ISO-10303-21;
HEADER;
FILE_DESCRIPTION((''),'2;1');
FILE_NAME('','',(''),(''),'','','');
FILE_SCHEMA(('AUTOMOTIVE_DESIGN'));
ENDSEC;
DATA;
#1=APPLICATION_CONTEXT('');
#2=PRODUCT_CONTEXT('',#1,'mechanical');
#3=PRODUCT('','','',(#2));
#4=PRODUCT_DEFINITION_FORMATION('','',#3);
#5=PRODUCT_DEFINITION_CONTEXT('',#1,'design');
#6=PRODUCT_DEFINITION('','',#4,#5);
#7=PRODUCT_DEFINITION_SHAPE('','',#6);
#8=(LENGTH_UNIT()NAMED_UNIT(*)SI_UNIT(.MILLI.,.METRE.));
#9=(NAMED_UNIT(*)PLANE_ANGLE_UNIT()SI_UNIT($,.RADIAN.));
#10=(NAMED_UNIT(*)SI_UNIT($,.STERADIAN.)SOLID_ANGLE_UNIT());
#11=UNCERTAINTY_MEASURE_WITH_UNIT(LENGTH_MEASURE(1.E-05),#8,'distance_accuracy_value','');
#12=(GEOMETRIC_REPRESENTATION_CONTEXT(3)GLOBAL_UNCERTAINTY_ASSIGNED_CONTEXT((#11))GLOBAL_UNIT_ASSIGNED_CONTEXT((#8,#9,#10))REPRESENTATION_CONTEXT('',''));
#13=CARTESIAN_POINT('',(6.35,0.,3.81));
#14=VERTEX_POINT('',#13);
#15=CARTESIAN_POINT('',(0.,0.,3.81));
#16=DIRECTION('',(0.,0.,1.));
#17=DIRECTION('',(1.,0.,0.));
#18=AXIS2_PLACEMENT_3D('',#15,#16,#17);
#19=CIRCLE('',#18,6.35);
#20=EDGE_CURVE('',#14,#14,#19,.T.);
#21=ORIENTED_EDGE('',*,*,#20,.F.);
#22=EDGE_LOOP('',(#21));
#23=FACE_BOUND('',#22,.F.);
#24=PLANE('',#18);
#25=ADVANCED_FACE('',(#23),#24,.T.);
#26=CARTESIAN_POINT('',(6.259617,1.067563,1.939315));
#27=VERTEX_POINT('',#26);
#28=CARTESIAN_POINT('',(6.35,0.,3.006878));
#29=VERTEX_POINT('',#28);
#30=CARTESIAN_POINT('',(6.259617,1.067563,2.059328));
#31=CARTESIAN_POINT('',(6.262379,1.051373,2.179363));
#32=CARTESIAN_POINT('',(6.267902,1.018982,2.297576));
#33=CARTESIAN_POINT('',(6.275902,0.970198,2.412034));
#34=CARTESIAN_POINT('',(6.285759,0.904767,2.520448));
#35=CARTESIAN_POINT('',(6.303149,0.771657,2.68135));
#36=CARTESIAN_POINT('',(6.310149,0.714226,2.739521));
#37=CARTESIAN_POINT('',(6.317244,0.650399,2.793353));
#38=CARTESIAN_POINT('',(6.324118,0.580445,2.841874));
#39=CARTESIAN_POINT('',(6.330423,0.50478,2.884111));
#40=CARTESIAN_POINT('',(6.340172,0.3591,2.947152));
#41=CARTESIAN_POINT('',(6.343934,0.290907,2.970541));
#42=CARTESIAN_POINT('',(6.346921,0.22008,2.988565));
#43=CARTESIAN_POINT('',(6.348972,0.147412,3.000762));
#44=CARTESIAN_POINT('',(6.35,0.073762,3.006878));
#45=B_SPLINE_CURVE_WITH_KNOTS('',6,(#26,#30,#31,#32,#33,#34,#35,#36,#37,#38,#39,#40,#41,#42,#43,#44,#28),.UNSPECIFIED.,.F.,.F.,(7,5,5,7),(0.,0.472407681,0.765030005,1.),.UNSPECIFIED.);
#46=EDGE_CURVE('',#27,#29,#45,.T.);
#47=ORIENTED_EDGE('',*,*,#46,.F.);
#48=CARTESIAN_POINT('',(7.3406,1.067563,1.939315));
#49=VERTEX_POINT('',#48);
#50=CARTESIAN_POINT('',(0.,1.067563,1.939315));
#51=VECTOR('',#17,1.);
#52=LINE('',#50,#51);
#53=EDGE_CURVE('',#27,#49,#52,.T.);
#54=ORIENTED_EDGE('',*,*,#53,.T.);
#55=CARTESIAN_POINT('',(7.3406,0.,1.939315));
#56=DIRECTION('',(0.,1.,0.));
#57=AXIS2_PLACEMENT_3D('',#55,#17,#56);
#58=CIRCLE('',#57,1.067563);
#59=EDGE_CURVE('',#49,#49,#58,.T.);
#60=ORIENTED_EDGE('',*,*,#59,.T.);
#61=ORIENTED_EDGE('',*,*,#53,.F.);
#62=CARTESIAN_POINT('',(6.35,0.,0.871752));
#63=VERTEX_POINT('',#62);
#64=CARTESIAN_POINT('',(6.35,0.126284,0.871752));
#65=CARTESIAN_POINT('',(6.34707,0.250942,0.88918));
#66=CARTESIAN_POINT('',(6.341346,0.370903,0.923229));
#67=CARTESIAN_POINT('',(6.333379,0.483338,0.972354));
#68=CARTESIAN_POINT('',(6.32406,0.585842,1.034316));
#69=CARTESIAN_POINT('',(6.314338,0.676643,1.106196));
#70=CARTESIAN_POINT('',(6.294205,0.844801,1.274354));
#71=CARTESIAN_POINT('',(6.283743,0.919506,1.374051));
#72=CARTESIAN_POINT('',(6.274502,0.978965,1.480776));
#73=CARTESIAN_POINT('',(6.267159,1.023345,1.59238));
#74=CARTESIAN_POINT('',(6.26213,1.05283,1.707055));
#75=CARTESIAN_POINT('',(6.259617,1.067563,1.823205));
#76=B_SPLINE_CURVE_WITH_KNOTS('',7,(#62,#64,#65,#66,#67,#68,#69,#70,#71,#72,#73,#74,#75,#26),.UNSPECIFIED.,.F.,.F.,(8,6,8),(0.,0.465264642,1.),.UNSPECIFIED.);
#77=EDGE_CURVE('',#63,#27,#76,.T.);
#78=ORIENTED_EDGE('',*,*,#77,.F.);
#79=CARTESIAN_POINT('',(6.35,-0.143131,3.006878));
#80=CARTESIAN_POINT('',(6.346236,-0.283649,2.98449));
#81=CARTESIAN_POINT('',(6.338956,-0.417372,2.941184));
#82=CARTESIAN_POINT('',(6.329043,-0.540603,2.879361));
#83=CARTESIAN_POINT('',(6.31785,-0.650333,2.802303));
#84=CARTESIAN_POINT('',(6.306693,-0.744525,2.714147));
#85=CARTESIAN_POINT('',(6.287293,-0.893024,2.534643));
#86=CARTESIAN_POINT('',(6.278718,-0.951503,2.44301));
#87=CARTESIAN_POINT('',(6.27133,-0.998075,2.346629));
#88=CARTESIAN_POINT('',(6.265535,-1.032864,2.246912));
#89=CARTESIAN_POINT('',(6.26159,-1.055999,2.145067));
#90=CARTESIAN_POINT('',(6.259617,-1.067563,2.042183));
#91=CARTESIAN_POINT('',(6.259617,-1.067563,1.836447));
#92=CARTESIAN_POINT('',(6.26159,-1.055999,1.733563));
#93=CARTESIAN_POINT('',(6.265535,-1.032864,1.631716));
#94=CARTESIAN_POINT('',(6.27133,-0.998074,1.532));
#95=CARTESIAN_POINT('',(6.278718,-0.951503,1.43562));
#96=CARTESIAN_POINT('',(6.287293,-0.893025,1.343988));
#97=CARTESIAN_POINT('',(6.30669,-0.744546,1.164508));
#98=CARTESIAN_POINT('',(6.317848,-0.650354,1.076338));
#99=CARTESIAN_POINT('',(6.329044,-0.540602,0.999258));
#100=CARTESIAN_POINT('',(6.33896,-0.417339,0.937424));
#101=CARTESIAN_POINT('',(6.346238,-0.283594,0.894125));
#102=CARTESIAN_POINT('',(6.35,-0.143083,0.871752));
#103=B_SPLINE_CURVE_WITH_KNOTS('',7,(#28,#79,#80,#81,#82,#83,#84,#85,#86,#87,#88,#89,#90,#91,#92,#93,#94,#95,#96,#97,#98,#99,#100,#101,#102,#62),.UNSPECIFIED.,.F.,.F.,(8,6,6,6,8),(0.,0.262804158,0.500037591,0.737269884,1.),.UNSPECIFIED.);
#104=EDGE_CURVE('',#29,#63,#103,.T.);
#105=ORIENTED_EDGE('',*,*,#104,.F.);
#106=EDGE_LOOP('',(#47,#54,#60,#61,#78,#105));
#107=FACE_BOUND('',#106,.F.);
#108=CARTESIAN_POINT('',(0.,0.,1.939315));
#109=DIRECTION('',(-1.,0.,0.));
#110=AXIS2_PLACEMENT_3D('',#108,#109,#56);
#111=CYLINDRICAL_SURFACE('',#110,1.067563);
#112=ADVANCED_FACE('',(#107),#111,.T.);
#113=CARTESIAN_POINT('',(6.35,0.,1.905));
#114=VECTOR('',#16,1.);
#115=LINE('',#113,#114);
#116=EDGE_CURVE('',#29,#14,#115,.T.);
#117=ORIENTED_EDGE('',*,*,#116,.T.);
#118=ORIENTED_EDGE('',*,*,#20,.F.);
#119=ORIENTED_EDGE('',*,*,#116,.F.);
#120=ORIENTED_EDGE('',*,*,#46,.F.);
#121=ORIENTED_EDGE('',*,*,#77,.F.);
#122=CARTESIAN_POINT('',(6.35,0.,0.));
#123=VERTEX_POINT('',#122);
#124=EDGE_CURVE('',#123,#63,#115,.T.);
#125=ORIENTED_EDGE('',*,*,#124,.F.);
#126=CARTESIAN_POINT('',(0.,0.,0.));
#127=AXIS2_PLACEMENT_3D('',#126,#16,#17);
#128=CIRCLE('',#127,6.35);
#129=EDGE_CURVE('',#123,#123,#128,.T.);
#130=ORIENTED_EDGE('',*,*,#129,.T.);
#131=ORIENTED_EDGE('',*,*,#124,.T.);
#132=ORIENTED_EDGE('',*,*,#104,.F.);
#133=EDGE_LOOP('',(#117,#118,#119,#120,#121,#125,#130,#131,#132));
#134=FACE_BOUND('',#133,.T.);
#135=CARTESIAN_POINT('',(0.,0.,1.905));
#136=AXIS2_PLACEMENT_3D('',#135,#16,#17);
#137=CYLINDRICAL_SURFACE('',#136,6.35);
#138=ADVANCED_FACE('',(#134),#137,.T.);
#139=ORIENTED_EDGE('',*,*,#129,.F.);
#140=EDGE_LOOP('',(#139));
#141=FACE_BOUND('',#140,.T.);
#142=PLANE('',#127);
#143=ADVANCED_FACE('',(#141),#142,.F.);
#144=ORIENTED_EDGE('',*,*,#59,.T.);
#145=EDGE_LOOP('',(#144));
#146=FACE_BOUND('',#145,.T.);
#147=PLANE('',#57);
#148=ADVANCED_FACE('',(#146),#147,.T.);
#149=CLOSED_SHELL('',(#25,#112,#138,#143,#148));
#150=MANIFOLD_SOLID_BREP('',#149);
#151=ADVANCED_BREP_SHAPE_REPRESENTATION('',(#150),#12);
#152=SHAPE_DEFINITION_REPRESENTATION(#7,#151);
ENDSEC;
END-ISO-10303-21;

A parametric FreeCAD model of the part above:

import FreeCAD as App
import Part
import Sketcher
Q = App.Units.Quantity

doc = App.newDocument("Part")
body = doc.addObject("PartDesign::Body", "Body")

sketch1 = body.newObject("Sketcher::SketchObject", "Sketch")
sketch1.AttachmentSupport = (doc.getObject("XZ_Plane"), [""])
sketch1.MapMode = "FlatFace"
sketch1.addGeometry(Part.LineSegment(App.Vector(0, 3.81, 0), App.Vector(0, 0, 0)), False)
sketch1.addGeometry(Part.LineSegment(App.Vector(0, 0, 0), App.Vector(6.35, 0, 0)), False)
sketch1.addGeometry(Part.LineSegment(App.Vector(6.35, 0, 0), App.Vector(6.35, 3.81, 0)), False)
sketch1.addGeometry(Part.LineSegment(App.Vector(6.35, 3.81, 0), App.Vector(0, 3.81, 0)), False)
sketch1.addConstraint(Sketcher.Constraint("Coincident", 0, 2, 1, 1))
sketch1.addConstraint(Sketcher.Constraint("Coincident", 1, 2, 2, 1))
sketch1.addConstraint(Sketcher.Constraint("Coincident", 2, 2, 3, 1))
sketch1.addConstraint(Sketcher.Constraint("Coincident", 3, 2, 0, 1))
sketch1.addConstraint(Sketcher.Constraint("Vertical", 0))
sketch1.addConstraint(Sketcher.Constraint("Horizontal", 1))
sketch1.addConstraint(Sketcher.Constraint("Vertical", 2))
sketch1.addConstraint(Sketcher.Constraint("Horizontal", 3))
sketch1.addConstraint(Sketcher.Constraint("Coincident", 0, 2, -1, 1))
sketch1.addConstraint(Sketcher.Constraint("DistanceX", 1, 1, 1, 2, Q("0.25 in")))
sketch1.addConstraint(Sketcher.Constraint("DistanceY", 0, 2, 0, 1, Q("0.15 in")))
revolution = body.newObject("PartDesign::Revolution", "Revolution")
revolution.Profile = sketch1
revolution.ReferenceAxis = (sketch1, ["V_Axis"])
revolution.Angle = 360

sketch2 = body.newObject("Sketcher::SketchObject", "Sketch001")
sketch2.AttachmentSupport = (doc.getObject("YZ_Plane"), [""])
sketch2.MapMode = "FlatFace"
sketch2.addGeometry(Part.Circle(App.Vector(0, 1.939315, 0), App.Vector(0, 0, 1), 1.067563), False)
sketch2.addConstraint(Sketcher.Constraint("PointOnObject", 0, 3, -2))
sketch2.addConstraint(Sketcher.Constraint("Diameter", 0, 2.135126))
sketch2.addConstraint(Sketcher.Constraint("DistanceY", -1, 1, 0, 3, 1.939315))
pad1 = body.newObject("PartDesign::Pad", "Pad")
pad1.Profile = sketch2
pad1.Length = Q("0.289 in")

doc.recompute()
